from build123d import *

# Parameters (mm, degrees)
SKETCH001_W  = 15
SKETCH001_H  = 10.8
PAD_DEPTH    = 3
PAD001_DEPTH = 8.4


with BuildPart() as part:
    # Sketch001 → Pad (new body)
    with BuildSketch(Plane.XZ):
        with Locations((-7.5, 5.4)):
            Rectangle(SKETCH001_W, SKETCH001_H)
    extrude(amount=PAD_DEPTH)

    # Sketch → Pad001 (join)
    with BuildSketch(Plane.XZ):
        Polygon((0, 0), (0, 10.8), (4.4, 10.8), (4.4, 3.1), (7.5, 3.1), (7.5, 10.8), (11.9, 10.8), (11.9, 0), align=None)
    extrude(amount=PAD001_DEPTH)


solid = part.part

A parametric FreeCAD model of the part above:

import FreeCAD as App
import Part
import Sketcher


def add_polygon(sketch, points):
    """Adds a closed chain of lines whose ends are joined by coincident constraints."""
    first, n = sketch.GeometryCount, len(points)
    for a, b in zip(points, points[1:] + points[:1]):
        sketch.addGeometry(Part.LineSegment(App.Vector(*a, 0), App.Vector(*b, 0)), False)
    for i in range(n):
        sketch.addConstraint(Sketcher.Constraint("Coincident", first + i, 2, first + (i + 1) % n, 1))

doc = App.newDocument("Part")
body = doc.addObject("PartDesign::Body", "Body")

sketch1 = body.newObject("Sketcher::SketchObject", "Sketch")
sketch1.AttachmentSupport = (doc.getObject("XZ_Plane"), [""])
sketch1.MapMode = "FlatFace"
add_polygon(sketch1, [(-15, 11), (-15, 0), (0, 0), (0, 11)])
sketch1.addConstraint([
    Sketcher.Constraint("Vertical", 0),
    Sketcher.Constraint("Horizontal", 1),
    Sketcher.Constraint("Vertical", 2),
    Sketcher.Constraint("Horizontal", 3),
    Sketcher.Constraint("Coincident", 1, 2, -1, 1),
    Sketcher.Constraint("DistanceX", 1, 1, 1, 2, 15.0),
    Sketcher.Constraint("DistanceY", 0, 2, 0, 1, 10.8),
])
pad1 = body.newObject("PartDesign::Pad", "Pad")
pad1.Profile = sketch1
pad1.Length = 3

sketch2 = body.newObject("Sketcher::SketchObject", "Sketch001")
sketch2.AttachmentSupport = (doc.getObject("XZ_Plane"), [""])
sketch2.MapMode = "FlatFace"
add_polygon(sketch2, [(0, 10.8), (0, 0), (11.9, 0), (11.9, 10.8), (7.5, 10.8), (7.5, 3.1), (4.4, 3.1), (4.4, 10.8)])
sketch2.addConstraint([
    Sketcher.Constraint("Vertical", 0),
    Sketcher.Constraint("Horizontal", 1),
    Sketcher.Constraint("Vertical", 2),
    Sketcher.Constraint("Horizontal", 3),
    Sketcher.Constraint("Vertical", 4),
    Sketcher.Constraint("Horizontal", 5),
    Sketcher.Constraint("Vertical", 6),
    Sketcher.Constraint("Horizontal", 7),
    Sketcher.Constraint("Coincident", 0, 2, -1, 1),
    Sketcher.Constraint("Horizontal", 3, 2, 6, 2),
    Sketcher.Constraint("Equal", 3, 7),
    Sketcher.Constraint("DistanceX", 1, 1, 1, 2, 11.9),
    Sketcher.Constraint("DistanceX", 3, 2, 3, 1, 4.4),
    Sketcher.Constraint("DistanceY", 0, 2, 0, 1, 10.8),
    Sketcher.Constraint("DistanceY", 4, 2, 4, 1, 7.7),
])
pad2 = body.newObject("PartDesign::Pad", "Pad001")
pad2.Profile = sketch2
pad2.Length = 8.4

doc.recompute()
